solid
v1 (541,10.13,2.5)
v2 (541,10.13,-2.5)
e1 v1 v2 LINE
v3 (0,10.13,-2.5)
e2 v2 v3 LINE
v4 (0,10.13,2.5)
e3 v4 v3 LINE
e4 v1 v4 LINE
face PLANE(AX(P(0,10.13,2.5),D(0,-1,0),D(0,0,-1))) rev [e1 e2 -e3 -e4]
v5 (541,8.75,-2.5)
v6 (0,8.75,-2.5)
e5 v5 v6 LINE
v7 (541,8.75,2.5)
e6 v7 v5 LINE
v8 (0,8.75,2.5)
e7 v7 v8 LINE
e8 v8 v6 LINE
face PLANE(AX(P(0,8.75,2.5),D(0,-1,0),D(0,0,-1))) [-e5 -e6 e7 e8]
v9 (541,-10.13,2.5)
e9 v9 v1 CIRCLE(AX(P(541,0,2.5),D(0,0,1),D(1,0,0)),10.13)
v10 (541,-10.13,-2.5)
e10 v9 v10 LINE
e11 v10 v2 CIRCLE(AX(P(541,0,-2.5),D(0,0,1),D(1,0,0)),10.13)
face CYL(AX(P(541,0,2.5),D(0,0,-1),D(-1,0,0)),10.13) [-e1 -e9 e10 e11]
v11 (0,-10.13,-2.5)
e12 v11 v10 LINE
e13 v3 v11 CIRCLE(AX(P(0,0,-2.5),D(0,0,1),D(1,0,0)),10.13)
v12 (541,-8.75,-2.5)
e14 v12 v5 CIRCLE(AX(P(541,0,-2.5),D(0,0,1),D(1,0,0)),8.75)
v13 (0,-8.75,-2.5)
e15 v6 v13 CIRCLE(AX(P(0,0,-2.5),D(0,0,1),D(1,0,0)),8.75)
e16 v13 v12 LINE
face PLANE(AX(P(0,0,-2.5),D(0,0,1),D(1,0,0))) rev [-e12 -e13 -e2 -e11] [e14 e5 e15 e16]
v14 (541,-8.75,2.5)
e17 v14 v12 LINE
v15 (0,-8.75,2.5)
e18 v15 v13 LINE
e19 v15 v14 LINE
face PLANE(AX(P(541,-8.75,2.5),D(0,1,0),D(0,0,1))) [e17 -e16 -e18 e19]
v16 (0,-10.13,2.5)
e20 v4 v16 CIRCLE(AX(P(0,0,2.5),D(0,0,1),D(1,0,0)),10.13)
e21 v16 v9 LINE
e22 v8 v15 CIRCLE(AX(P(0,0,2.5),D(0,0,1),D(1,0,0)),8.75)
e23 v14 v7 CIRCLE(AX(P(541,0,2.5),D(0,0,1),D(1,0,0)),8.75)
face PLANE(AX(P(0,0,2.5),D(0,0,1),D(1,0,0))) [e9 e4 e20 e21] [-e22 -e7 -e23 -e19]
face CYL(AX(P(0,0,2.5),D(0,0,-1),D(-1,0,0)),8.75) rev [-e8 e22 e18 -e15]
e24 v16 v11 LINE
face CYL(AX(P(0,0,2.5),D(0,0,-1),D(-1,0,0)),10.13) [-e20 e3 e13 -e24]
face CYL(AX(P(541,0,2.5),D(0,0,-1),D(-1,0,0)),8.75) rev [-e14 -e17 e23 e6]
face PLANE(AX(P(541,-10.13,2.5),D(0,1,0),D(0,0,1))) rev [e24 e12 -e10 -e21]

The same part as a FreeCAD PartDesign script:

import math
import FreeCAD as App
import Part
import Sketcher

V = App.Vector

doc = App.newDocument("Part")
body = doc.addObject("PartDesign::Body", "Body")

# Sketch on XY plane
sketch1 = body.newObject("Sketcher::SketchObject", "Sketch")
sketch1.AttachmentSupport = (doc.getObject("XY_Plane"), [""])
sketch1.MapMode = "FlatFace"
sketch1.addGeometry([
    Part.LineSegment(V(0, -10, 0), V(541, -10, 0)),  # 0
    Part.ArcOfCircle(Part.Circle(V(541, 0, 0), V(0, 0, 1), 10), math.radians(-90), math.radians(90)),  # 1
    Part.LineSegment(V(541, 10, 0), V(0, 10, 0)),  # 2
    Part.ArcOfCircle(Part.Circle(V(0, 0, 0), V(0, 0, 1), 10), math.radians(90), math.radians(270)),  # 3
    Part.LineSegment(V(541, -9, 0), V(0, -9, 0)),  # 4
    Part.ArcOfCircle(Part.Circle(V(0, 0, 0), V(0, 0, 1), 9), math.radians(90), math.radians(270)),  # 5
    Part.LineSegment(V(0, 9, 0), V(541, 9, 0)),  # 6
    Part.ArcOfCircle(Part.Circle(V(541, 0, 0), V(0, 0, 1), 9), math.radians(-90), math.radians(90)),  # 7
], False)
sketch1.addConstraint([
    Sketcher.Constraint("Tangent", 0, 2, 1, 1),
    Sketcher.Constraint("Tangent", 1, 2, 2, 1),
    Sketcher.Constraint("Tangent", 2, 2, 3, 1),
    Sketcher.Constraint("Tangent", 3, 2, 0, 1),
    Sketcher.Constraint("Tangent", 4, 2, 5, 2),
    Sketcher.Constraint("Tangent", 5, 1, 6, 1),
    Sketcher.Constraint("Tangent", 6, 2, 7, 2),
    Sketcher.Constraint("Tangent", 7, 1, 4, 1),
    Sketcher.Constraint("Horizontal", 0),
    Sketcher.Constraint("Horizontal", 2),
    Sketcher.Constraint("Horizontal", 4),
    Sketcher.Constraint("Horizontal", 6),
    Sketcher.Constraint("Coincident", 3, 3, -1, 1),
    Sketcher.Constraint("Coincident", 5, 3, -1, 1),
    Sketcher.Constraint("Vertical", 7, 3, 0, 2),
    Sketcher.Constraint("DistanceX", 0, 1, 0, 2, 541.0),
    Sketcher.Constraint("Radius", 1, 10.13),
    Sketcher.Constraint("Radius", 5, 8.75),
])
pad1 = body.newObject("PartDesign::Pad", "Pad")
pad1.Profile = sketch1
pad1.Length = 5
pad1.Midplane = True

doc.recompute()
